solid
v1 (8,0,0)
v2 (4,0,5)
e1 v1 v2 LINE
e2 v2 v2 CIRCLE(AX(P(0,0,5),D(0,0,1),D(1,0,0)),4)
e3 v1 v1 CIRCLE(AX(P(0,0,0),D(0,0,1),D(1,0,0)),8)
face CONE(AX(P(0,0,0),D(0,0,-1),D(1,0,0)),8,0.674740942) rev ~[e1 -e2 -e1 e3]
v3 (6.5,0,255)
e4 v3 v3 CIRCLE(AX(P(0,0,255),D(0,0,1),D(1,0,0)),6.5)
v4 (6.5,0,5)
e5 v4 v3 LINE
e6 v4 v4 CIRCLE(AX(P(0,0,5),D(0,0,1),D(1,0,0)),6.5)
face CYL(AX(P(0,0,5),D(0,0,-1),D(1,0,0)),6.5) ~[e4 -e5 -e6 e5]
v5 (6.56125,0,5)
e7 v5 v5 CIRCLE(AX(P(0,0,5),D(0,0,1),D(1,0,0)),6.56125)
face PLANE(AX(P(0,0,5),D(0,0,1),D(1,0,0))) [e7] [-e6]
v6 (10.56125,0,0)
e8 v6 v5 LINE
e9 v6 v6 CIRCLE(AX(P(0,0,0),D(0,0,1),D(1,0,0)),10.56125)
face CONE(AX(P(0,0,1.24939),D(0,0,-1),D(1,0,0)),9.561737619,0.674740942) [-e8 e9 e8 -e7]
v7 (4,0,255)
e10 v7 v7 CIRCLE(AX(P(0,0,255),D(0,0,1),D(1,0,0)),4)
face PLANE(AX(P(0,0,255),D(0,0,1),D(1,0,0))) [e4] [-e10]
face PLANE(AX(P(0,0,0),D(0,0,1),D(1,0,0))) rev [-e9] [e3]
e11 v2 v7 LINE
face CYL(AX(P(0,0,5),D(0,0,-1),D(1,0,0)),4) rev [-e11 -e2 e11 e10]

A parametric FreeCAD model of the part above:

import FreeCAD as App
import Part
import Sketcher

V = App.Vector
Q = App.Units.Quantity


def faces_at(feature, points):
    """Names of the faces that lie closest to the given points."""
    faces = feature.Shape.Faces
    near = lambda p: min(range(len(faces)), key=lambda i: faces[i].distToShape(Part.Vertex(*p))[0])
    return sorted({f"Face{near(p) + 1}" for p in points})


def add_polygon(sketch, points):
    """Adds a closed chain of lines whose ends are joined by coincident constraints."""
    first, n = sketch.GeometryCount, len(points)
    for a, b in zip(points, points[1:] + points[:1]):
        sketch.addGeometry(Part.LineSegment(App.Vector(*a, 0), App.Vector(*b, 0)), False)
    for i in range(n):
        sketch.addConstraint(Sketcher.Constraint("Coincident", first + i, 2, first + (i + 1) % n, 1))

doc = App.newDocument("Part")
body = doc.addObject("PartDesign::Body", "Body")

sketch1 = body.newObject("Sketcher::SketchObject", "Sketch")
sketch1.AttachmentSupport = (doc.getObject("XZ_Plane"), [""])
sketch1.MapMode = "FlatFace"
add_polygon(sketch1, [(0, 0), (8, 0), (4, 5), (0, 5)])
sketch1.addConstraint([
    Sketcher.Constraint("Horizontal", 0),
    Sketcher.Constraint("Horizontal", 2),
    Sketcher.Constraint("Vertical", 3),
    Sketcher.Constraint("Coincident", 3, 2, -1, 1),
    Sketcher.Constraint("DistanceX", 0, 1, 0, 2, Q("8 mm")),
    Sketcher.Constraint("DistanceX", 2, 2, 2, 1, Q("4 mm")),
    Sketcher.Constraint("DistanceY", 3, 2, 3, 1, Q("5 mm")),
])
revolution = body.newObject("PartDesign::Revolution", "Revolution")
revolution.Profile = sketch1
revolution.ReferenceAxis = (sketch1, ["V_Axis"])
revolution.Angle = 360
doc.recompute()

thickness = body.newObject("PartDesign::Thickness", "Thickness")
thickness.Base = (revolution, faces_at(revolution, [(0, 0, 5), (0, 0, 0)]))
thickness.Value = 2
thickness.Reversed = False
thickness.Join = "Arc"

sketch2 = body.newObject("Sketcher::SketchObject", "Sketch001")
sketch2.AttachmentSupport = (doc.getObject("XY_Plane"), [""])
sketch2.MapMode = "FlatFace"
sketch2.AttachmentOffset = App.Placement(V(0, 0, 5), App.Rotation())
sketch2.addGeometry([
    Part.Circle(V(0, 0, 0), V(0, 0, 1), 6.5),
    Part.Circle(V(0, 0, 0), V(0, 0, 1), 4),
], False)
sketch2.addConstraint([
    Sketcher.Constraint("Coincident", 0, 3, -1, 1),
    Sketcher.Constraint("Coincident", 1, 3, -1, 1),
    Sketcher.Constraint("Diameter", 0, Q("13 mm")),
    Sketcher.Constraint("Diameter", 1, Q("8 mm")),
])
pad1 = body.newObject("PartDesign::Pad", "Pad")
pad1.Profile = sketch2
pad1.Length = 250

doc.recompute()
